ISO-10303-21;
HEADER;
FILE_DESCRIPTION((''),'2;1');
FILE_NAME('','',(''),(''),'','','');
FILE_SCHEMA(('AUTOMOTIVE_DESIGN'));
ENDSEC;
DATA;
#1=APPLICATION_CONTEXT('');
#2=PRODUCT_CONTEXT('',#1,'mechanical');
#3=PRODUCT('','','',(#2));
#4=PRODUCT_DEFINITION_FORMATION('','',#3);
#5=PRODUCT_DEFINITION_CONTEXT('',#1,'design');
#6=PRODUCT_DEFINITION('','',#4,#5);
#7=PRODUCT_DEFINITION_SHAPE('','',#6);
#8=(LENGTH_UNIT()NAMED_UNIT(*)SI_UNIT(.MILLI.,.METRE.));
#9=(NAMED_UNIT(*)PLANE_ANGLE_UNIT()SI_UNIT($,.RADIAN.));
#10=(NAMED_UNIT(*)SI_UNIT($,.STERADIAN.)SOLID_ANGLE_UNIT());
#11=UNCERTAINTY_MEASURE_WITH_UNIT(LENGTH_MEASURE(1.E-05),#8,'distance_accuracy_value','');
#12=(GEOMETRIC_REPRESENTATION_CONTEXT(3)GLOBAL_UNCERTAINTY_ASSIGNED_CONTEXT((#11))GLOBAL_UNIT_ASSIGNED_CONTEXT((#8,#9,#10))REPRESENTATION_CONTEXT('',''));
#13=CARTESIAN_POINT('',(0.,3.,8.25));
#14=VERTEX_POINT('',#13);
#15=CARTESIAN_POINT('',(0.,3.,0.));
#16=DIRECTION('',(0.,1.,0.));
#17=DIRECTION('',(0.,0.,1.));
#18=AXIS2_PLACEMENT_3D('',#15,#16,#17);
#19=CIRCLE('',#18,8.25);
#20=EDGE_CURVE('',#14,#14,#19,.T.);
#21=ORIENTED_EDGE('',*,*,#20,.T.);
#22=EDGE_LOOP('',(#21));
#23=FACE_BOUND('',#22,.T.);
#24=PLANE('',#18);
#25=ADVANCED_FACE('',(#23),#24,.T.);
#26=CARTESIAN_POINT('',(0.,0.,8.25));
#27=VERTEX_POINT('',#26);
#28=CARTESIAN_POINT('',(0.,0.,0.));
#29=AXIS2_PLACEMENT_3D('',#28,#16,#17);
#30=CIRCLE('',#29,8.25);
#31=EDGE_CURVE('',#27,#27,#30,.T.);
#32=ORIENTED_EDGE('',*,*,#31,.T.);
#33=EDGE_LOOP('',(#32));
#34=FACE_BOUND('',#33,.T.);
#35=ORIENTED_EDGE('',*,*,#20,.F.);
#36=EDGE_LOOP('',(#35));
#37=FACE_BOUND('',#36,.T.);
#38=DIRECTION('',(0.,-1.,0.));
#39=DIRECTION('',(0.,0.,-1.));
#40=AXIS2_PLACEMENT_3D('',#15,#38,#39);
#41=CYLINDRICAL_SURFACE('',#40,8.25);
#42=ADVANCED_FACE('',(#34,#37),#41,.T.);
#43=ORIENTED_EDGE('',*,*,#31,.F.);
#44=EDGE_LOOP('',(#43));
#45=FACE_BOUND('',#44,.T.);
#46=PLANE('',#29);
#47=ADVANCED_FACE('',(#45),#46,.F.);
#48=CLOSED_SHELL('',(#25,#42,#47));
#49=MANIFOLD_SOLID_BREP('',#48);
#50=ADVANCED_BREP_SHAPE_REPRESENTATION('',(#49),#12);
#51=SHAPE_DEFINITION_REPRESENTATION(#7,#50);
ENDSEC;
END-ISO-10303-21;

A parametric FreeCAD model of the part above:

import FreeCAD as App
import Part
import Sketcher
from FreeCAD import Vector
Q = App.Units.Quantity

doc = App.newDocument("Part")
params = doc.addObject("Spreadsheet::Sheet", "Params")
for row, (alias, value) in enumerate([
    ("sketch1_diameter", "16.5 mm"),
    ("pad1_length", "3 mm"),
], start=1):
    params.set(f"A{row}", alias)
    params.set(f"B{row}", "=" + value)
    params.setAlias(f"B{row}", alias)

body = doc.addObject("PartDesign::Body", "Body")

sketch1 = doc.addObject("Sketcher::SketchObject", "Sketch")
body.addObject(sketch1)
sketch1.AttachmentSupport = (doc.XZ_Plane, [""])
sketch1.MapMode = "FlatFace"
sketch1.addGeometry(Part.Circle(Vector(0, 0, 0), Vector(0, 0, 1), 8), False)
sketch1.addConstraint(Sketcher.Constraint("Coincident", 0, 3, -1, 1))
sketch1.addConstraint(Sketcher.Constraint("Diameter", 0, Q("16.5 mm")))
sketch1.setExpression("Constraints[1]", "Params.sketch1_diameter")
pad1 = doc.addObject("PartDesign::Pad", "Pad")
body.addObject(pad1)
pad1.Profile = sketch1
pad1.setExpression("Length", "Params.pad1_length")
pad1.Reversed = True

doc.recompute()
